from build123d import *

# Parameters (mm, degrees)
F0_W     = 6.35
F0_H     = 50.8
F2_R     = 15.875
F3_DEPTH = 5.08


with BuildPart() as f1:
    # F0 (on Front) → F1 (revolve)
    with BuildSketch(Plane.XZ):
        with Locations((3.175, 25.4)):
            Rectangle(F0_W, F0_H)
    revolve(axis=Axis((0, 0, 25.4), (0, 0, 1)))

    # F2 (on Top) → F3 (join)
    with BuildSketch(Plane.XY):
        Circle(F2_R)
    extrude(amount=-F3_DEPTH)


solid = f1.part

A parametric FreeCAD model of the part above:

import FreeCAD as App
import Part
import Sketcher
from FreeCAD import Vector
Q = App.Units.Quantity

doc = App.newDocument("Part")
body = doc.addObject("PartDesign::Body", "Body")

# Sketch on XZ plane
sketch1 = body.newObject("Sketcher::SketchObject", "Sketch")
sketch1.AttachmentSupport = (doc.getObject("XZ_Plane"), [""])
sketch1.MapMode = "FlatFace"
sketch1.addGeometry(Part.LineSegment(Vector(0, 51, 0), Vector(0, 0, 0)), False)
sketch1.addGeometry(Part.LineSegment(Vector(0, 0, 0), Vector(6, 0, 0)), False)
sketch1.addGeometry(Part.LineSegment(Vector(6, 0, 0), Vector(6, 51, 0)), False)
sketch1.addGeometry(Part.LineSegment(Vector(6, 51, 0), Vector(0, 51, 0)), False)
sketch1.addConstraint(Sketcher.Constraint("Coincident", 0, 2, 1, 1))
sketch1.addConstraint(Sketcher.Constraint("Coincident", 1, 2, 2, 1))
sketch1.addConstraint(Sketcher.Constraint("Coincident", 2, 2, 3, 1))
sketch1.addConstraint(Sketcher.Constraint("Coincident", 3, 2, 0, 1))
sketch1.addConstraint(Sketcher.Constraint("Vertical", 0))
sketch1.addConstraint(Sketcher.Constraint("Horizontal", 1))
sketch1.addConstraint(Sketcher.Constraint("Vertical", 2))
sketch1.addConstraint(Sketcher.Constraint("Horizontal", 3))
sketch1.addConstraint(Sketcher.Constraint("Coincident", 0, 2, -1, 1))
sketch1.addConstraint(Sketcher.Constraint("DistanceY", 0, 2, 0, 1, Q("2 in")))
sketch1.addConstraint(Sketcher.Constraint("DistanceX", 1, 1, 1, 2, Q("0.25 in")))
revolution = body.newObject("PartDesign::Revolution", "Revolution")
revolution.Profile = sketch1
revolution.ReferenceAxis = (sketch1, ["V_Axis"])
revolution.Angle = 360

# Sketch on XY plane
sketch2 = body.newObject("Sketcher::SketchObject", "Sketch001")
sketch2.AttachmentSupport = (doc.getObject("XY_Plane"), [""])
sketch2.MapMode = "FlatFace"
sketch2.addGeometry(Part.Circle(Vector(0, 0, 0), Vector(0, 0, 1), 16), False)
sketch2.addConstraint(Sketcher.Constraint("Coincident", 0, 3, -1, 1))
sketch2.addConstraint(Sketcher.Constraint("Diameter", 0, Q("1.25 in")))
pad1 = body.newObject("PartDesign::Pad", "Pad")
pad1.Profile = sketch2
pad1.Length = Q("0.2 in")
pad1.Reversed = True

doc.recompute()
